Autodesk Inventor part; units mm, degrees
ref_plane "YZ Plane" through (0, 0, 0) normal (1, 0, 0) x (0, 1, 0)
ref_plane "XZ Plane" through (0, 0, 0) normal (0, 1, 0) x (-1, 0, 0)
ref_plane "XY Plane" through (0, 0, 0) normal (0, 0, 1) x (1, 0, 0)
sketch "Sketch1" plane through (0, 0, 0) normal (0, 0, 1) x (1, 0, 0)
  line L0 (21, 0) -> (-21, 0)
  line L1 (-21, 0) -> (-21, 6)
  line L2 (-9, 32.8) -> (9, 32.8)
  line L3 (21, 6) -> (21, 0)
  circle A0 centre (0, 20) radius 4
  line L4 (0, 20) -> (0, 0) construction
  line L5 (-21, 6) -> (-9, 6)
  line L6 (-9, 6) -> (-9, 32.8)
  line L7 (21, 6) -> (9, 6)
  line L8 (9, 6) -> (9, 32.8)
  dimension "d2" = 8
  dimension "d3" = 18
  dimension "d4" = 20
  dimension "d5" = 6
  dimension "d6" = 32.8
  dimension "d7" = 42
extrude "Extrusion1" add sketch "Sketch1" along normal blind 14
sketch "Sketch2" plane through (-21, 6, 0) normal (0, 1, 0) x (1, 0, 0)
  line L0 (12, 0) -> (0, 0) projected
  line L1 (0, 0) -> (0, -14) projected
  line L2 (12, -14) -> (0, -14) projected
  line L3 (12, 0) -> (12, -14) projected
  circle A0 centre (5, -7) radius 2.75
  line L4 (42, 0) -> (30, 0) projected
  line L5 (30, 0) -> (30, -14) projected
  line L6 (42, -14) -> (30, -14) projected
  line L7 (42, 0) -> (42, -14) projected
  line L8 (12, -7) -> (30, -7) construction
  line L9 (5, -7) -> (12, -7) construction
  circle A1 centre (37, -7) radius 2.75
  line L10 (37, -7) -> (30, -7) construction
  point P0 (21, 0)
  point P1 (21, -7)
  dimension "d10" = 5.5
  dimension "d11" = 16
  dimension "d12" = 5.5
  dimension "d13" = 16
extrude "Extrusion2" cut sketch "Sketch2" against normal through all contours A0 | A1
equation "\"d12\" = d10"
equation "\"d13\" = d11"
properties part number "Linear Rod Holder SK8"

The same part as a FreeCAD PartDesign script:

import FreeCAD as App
import Part
import Sketcher


def add_polygon(sketch, points):
    """Adds a closed chain of lines whose ends are joined by coincident constraints."""
    first, n = sketch.GeometryCount, len(points)
    for a, b in zip(points, points[1:] + points[:1]):
        sketch.addGeometry(Part.LineSegment(App.Vector(*a, 0), App.Vector(*b, 0)), False)
    for i in range(n):
        sketch.addConstraint(Sketcher.Constraint("Coincident", first + i, 2, first + (i + 1) % n, 1))

doc = App.newDocument("Part")
params = doc.addObject("Spreadsheet::Sheet", "Params")
for row, (alias, value) in enumerate([
    ("sketch1_diameter", "8 mm"),
    ("sketch1_width", "42 mm"),
    ("sketch1_width2", "18 mm"),
    ("sketch1_height", "6 mm"),
    ("pad1_length", "14 mm"),
    ("sketch2_diameter", "5.5 mm"),
], start=1):
    params.set(f"A{row}", alias)
    params.set(f"B{row}", "=" + value)
    params.setAlias(f"B{row}", alias)

body = doc.addObject("PartDesign::Body", "Body")

sketch1 = body.newObject("Sketcher::SketchObject", "Sketch")
sketch1.AttachmentSupport = (doc.getObject("XY_Plane"), [""])
sketch1.MapMode = "FlatFace"
add_polygon(sketch1, [(-21, 0), (21, 0), (21, 6), (9, 6), (9, 32.8), (-9, 32.8), (-9, 6), (-21, 6)])
sketch1.addGeometry(Part.Circle(App.Vector(0, 20, 0), App.Vector(0, 0, 1), 4), False)
sketch1.addConstraint([
    Sketcher.Constraint("Horizontal", 0),
    Sketcher.Constraint("Vertical", 1),
    Sketcher.Constraint("Horizontal", 2),
    Sketcher.Constraint("Vertical", 3),
    Sketcher.Constraint("Horizontal", 4),
    Sketcher.Constraint("Vertical", 5),
    Sketcher.Constraint("Horizontal", 6),
    Sketcher.Constraint("Vertical", 7),
    Sketcher.Constraint("Symmetric", 0, 2, 7, 2, -1, 1),
    Sketcher.Constraint("Symmetric", 2, 2, 5, 2, -2),
    Sketcher.Constraint("PointOnObject", 8, 3, -2),
    Sketcher.Constraint("Diameter", 8, 8.0),
    Sketcher.Constraint("DistanceX", 0, 1, 0, 2, 42.0),
    Sketcher.Constraint("DistanceX", 4, 2, 4, 1, 18.0),
    Sketcher.Constraint("DistanceY", 1, 1, 1, 2, 6.0),
    Sketcher.Constraint("DistanceY", -1, 1, 8, 3, 20.0),
    Sketcher.Constraint("DistanceY", -1, 1, 3, 2, 32.8),
])
sketch1.setExpression("Constraints[19]", "Params.sketch1_diameter")
sketch1.setExpression("Constraints[20]", "Params.sketch1_width")
sketch1.setExpression("Constraints[21]", "Params.sketch1_width2")
sketch1.setExpression("Constraints[22]", "Params.sketch1_height")
pad1 = body.newObject("PartDesign::Pad", "Pad")
pad1.Profile = sketch1
pad1.setExpression("Length", "Params.pad1_length")

sketch2 = body.newObject("Sketcher::SketchObject", "Sketch001")
sketch2.AttachmentSupport = (doc.getObject("XZ_Plane"), [""])
sketch2.MapMode = "FlatFace"
sketch2.AttachmentOffset = App.Placement(App.Vector(0, 0, -6), App.Rotation())
sketch2.addGeometry([
    Part.Circle(App.Vector(-16, 7, 0), App.Vector(0, 0, 1), 2.8),
    Part.Circle(App.Vector(16, 7, 0), App.Vector(0, 0, 1), 2.8),
], False)
sketch2.addConstraint([
    Sketcher.Constraint("Equal", 0, 1),
    Sketcher.Constraint("Symmetric", 0, 3, 1, 3, -2),
    Sketcher.Constraint("Diameter", 0, 5.5),
    Sketcher.Constraint("DistanceX", 0, 3, -1, 1, 16.0),
    Sketcher.Constraint("DistanceY", -1, 1, 0, 3, 7.0),
])
sketch2.setExpression("Constraints[2]", "Params.sketch2_diameter")
pocket1 = body.newObject("PartDesign::Pocket", "Pocket")
pocket1.Profile = sketch2
pocket1.Type = "ThroughAll"
pocket1.Reversed = True

doc.recompute()
